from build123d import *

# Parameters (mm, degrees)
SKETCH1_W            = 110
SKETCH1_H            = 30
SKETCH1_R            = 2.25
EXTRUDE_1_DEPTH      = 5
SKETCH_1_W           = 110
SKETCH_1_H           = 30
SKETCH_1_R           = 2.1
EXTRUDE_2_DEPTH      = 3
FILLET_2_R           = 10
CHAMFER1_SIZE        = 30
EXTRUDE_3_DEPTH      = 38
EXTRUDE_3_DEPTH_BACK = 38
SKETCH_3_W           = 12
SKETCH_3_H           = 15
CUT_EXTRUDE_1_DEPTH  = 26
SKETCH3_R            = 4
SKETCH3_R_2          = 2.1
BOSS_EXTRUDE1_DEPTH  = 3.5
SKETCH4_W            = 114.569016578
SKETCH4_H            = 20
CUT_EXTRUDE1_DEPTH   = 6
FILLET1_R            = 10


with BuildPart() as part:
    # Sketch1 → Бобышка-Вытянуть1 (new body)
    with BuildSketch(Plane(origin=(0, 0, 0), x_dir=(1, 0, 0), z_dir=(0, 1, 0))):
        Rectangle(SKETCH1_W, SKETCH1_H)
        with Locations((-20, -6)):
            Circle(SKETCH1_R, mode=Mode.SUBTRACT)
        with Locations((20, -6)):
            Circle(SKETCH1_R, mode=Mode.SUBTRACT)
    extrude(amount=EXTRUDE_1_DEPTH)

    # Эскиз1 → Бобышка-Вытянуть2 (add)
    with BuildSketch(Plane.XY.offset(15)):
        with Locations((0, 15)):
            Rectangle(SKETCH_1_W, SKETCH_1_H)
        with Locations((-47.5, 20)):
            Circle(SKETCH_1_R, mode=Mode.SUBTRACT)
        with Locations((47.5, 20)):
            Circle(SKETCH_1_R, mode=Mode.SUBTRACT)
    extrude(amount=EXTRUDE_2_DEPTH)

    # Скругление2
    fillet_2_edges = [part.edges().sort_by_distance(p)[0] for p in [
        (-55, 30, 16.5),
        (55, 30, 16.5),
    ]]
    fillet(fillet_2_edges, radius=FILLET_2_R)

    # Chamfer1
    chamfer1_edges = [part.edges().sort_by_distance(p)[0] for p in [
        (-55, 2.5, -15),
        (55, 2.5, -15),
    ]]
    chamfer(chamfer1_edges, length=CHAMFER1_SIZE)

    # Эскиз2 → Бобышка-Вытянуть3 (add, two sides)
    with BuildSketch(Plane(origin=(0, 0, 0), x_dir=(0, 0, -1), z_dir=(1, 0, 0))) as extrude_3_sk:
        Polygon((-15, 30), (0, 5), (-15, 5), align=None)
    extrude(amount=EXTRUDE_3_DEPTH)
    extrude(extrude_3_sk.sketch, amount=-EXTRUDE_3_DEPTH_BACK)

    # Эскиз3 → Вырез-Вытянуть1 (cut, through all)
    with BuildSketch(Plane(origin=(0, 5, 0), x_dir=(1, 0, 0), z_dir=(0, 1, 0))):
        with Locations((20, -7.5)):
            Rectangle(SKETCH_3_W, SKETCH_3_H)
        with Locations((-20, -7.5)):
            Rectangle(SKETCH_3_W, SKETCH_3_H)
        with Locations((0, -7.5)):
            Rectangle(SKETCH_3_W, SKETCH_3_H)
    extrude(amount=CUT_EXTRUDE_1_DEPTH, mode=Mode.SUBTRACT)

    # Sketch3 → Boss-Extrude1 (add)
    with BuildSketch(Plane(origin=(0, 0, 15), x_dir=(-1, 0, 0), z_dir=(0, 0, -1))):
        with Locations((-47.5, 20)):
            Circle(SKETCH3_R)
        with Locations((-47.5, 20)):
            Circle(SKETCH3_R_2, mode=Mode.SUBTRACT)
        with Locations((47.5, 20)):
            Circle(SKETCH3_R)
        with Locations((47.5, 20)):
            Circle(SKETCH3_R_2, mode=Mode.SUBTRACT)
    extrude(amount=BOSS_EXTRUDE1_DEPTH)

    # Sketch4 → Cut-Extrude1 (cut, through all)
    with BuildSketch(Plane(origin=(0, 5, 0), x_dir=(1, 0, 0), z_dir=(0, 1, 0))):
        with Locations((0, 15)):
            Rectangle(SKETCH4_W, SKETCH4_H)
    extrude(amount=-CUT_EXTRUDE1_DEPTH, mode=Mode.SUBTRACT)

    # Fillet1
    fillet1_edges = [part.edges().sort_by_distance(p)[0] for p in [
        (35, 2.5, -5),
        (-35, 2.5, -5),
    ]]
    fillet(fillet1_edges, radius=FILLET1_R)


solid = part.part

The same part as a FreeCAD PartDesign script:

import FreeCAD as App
import Part
import Sketcher

V = App.Vector


def edges_at(feature, points):
    """Names of the edges that pass closest to the given points."""
    edges = feature.Shape.Edges
    near = lambda p: min(range(len(edges)), key=lambda i: edges[i].distToShape(Part.Vertex(*p))[0])
    return sorted({f"Edge{near(p) + 1}" for p in points})

doc = App.newDocument("Part")
body = doc.addObject("PartDesign::Body", "Body")

sketch1 = body.newObject("Sketcher::SketchObject", "Sketch")
sketch1.AttachmentSupport = (doc.getObject("XZ_Plane"), [""])
sketch1.MapMode = "FlatFace"
sketch1.addGeometry([
    Part.LineSegment(V(-55, -15, 0), V(-55, 15, 0)),
    Part.LineSegment(V(-55, 15, 0), V(55, 15, 0)),
    Part.LineSegment(V(55, 15, 0), V(55, -15, 0)),
    Part.LineSegment(V(55, -15, 0), V(-55, -15, 0)),
    Part.Circle(V(-20, 6, 0), V(0, 0, 1), 2.2),
    Part.Circle(V(20, 6, 0), V(0, 0, 1), 2.2),
], False)
sketch1.addConstraint([
    Sketcher.Constraint("Coincident", 0, 2, 1, 1),
    Sketcher.Constraint("Coincident", 1, 2, 2, 1),
    Sketcher.Constraint("Coincident", 2, 2, 3, 1),
    Sketcher.Constraint("Coincident", 3, 2, 0, 1),
    Sketcher.Constraint("Vertical", 0),
    Sketcher.Constraint("Horizontal", 1),
    Sketcher.Constraint("Vertical", 2),
    Sketcher.Constraint("Horizontal", 3),
    Sketcher.Constraint("Equal", 4, 5),
    Sketcher.Constraint("Symmetric", 0, 2, 2, 2, -1, 1),
    Sketcher.Constraint("Symmetric", 4, 3, 5, 3, -2),
    Sketcher.Constraint("Diameter", 4, 4.5),
    Sketcher.Constraint("DistanceX", 1, 1, 1, 2, 110.0),
    Sketcher.Constraint("DistanceY", 0, 1, 0, 2, 30.0),
    Sketcher.Constraint("DistanceX", 4, 3, -1, 1, 20.0),
    Sketcher.Constraint("DistanceY", -1, 1, 4, 3, 6.0),
])
pad1 = body.newObject("PartDesign::Pad", "Pad")
pad1.Profile = sketch1
pad1.Length = 5
pad1.Reversed = True

sketch2 = body.newObject("Sketcher::SketchObject", "Sketch001")
sketch2.AttachmentSupport = (doc.getObject("XY_Plane"), [""])
sketch2.MapMode = "FlatFace"
sketch2.AttachmentOffset = App.Placement(V(0, 0, 15), App.Rotation())
sketch2.addGeometry([
    Part.LineSegment(V(-55, 30, 0), V(-55, 0, 0)),
    Part.LineSegment(V(-55, 0, 0), V(55, 0, 0)),
    Part.LineSegment(V(55, 0, 0), V(55, 30, 0)),
    Part.LineSegment(V(55, 30, 0), V(-55, 30, 0)),
    Part.Circle(V(-47.5, 20, 0), V(0, 0, 1), 2.1),
    Part.Circle(V(47.5, 20, 0), V(0, 0, 1), 2.1),
], False)
sketch2.addConstraint([
    Sketcher.Constraint("Coincident", 0, 2, 1, 1),
    Sketcher.Constraint("Coincident", 1, 2, 2, 1),
    Sketcher.Constraint("Coincident", 2, 2, 3, 1),
    Sketcher.Constraint("Coincident", 3, 2, 0, 1),
    Sketcher.Constraint("Vertical", 0),
    Sketcher.Constraint("Horizontal", 1),
    Sketcher.Constraint("Vertical", 2),
    Sketcher.Constraint("Horizontal", 3),
    Sketcher.Constraint("Equal", 4, 5),
    Sketcher.Constraint("Symmetric", 0, 2, 1, 2, -1, 1),
    Sketcher.Constraint("Symmetric", 4, 3, 5, 3, -2),
    Sketcher.Constraint("Diameter", 4, 4.2),
    Sketcher.Constraint("DistanceX", 1, 1, 1, 2, 110.0),
    Sketcher.Constraint("DistanceY", 0, 2, 0, 1, 30.0),
    Sketcher.Constraint("DistanceY", -1, 1, 4, 3, 20.0),
    Sketcher.Constraint("DistanceX", 4, 3, 5, 3, 95.0),
])
pad2 = body.newObject("PartDesign::Pad", "Pad001")
pad2.Profile = sketch2
pad2.Length = 3
doc.recompute()

fillet = body.newObject("PartDesign::Fillet", "Fillet")
fillet.Base = (pad2, edges_at(pad2, [(-55, 30, 16.5), (55, 30, 16.5)]))
fillet.Radius = 10
doc.recompute()

chamfer = body.newObject("PartDesign::Chamfer", "Chamfer")
chamfer.Base = (fillet, edges_at(fillet, [(-55, 2.5, -15), (55, 2.5, -15)]))
chamfer.Size = 30

sketch3 = body.newObject("Sketcher::SketchObject", "Sketch002")
sketch3.AttachmentSupport = (doc.getObject("YZ_Plane"), [""])
sketch3.MapMode = "FlatFace"
sketch3.addGeometry([
    Part.LineSegment(V(5, 0, 0), V(30, 15, 0)),
    Part.LineSegment(V(30, 15, 0), V(5, 15, 0)),
    Part.LineSegment(V(5, 15, 0), V(5, 0, 0)),
], False)
sketch3.addConstraint([
    Sketcher.Constraint("Coincident", 0, 2, 1, 1),
    Sketcher.Constraint("Coincident", 1, 2, 2, 1),
    Sketcher.Constraint("Coincident", 2, 2, 0, 1),
    Sketcher.Constraint("Horizontal", 1),
    Sketcher.Constraint("Vertical", 2),
    Sketcher.Constraint("PointOnObject", 2, 2, -1),
    Sketcher.Constraint("DistanceX", 1, 2, 1, 1, 25.0),
    Sketcher.Constraint("DistanceY", 2, 2, 2, 1, 15.0),
    Sketcher.Constraint("DistanceX", -1, 1, 0, 2, 30.0),
])
pad3 = body.newObject("PartDesign::Pad", "Pad002")
pad3.Profile = sketch3
pad3.Type = "TwoLengths"
pad3.Length = 38
pad3.Length2 = 38

sketch4 = body.newObject("Sketcher::SketchObject", "Sketch003")
sketch4.AttachmentSupport = (doc.getObject("XZ_Plane"), [""])
sketch4.MapMode = "FlatFace"
sketch4.AttachmentOffset = App.Placement(V(0, 0, -5), App.Rotation())
sketch4.addGeometry([
    Part.LineSegment(V(14, 0, 0), V(14, 15, 0)),
    Part.LineSegment(V(14, 15, 0), V(26, 15, 0)),
    Part.LineSegment(V(26, 15, 0), V(26, 0, 0)),
    Part.LineSegment(V(26, 0, 0), V(14, 0, 0)),
    Part.LineSegment(V(-26, 0, 0), V(-26, 15, 0)),
    Part.LineSegment(V(-26, 15, 0), V(-14, 15, 0)),
    Part.LineSegment(V(-14, 15, 0), V(-14, 0, 0)),
    Part.LineSegment(V(-14, 0, 0), V(-26, 0, 0)),
    Part.LineSegment(V(-6, 0, 0), V(-6, 15, 0)),
    Part.LineSegment(V(-6, 15, 0), V(6, 15, 0)),
    Part.LineSegment(V(6, 15, 0), V(6, 0, 0)),
    Part.LineSegment(V(6, 0, 0), V(-6, 0, 0)),
], False)
sketch4.addConstraint([
    Sketcher.Constraint("Coincident", 0, 2, 1, 1),
    Sketcher.Constraint("Coincident", 1, 2, 2, 1),
    Sketcher.Constraint("Coincident", 2, 2, 3, 1),
    Sketcher.Constraint("Coincident", 3, 2, 0, 1),
    Sketcher.Constraint("Coincident", 4, 2, 5, 1),
    Sketcher.Constraint("Coincident", 5, 2, 6, 1),
    Sketcher.Constraint("Coincident", 6, 2, 7, 1),
    Sketcher.Constraint("Coincident", 7, 2, 4, 1),
    Sketcher.Constraint("Coincident", 8, 2, 9, 1),
    Sketcher.Constraint("Coincident", 9, 2, 10, 1),
    Sketcher.Constraint("Coincident", 10, 2, 11, 1),
    Sketcher.Constraint("Coincident", 11, 2, 8, 1),
    Sketcher.Constraint("Vertical", 0),
    Sketcher.Constraint("Horizontal", 1),
    Sketcher.Constraint("Vertical", 2),
    Sketcher.Constraint("Horizontal", 3),
    Sketcher.Constraint("Vertical", 4),
    Sketcher.Constraint("Horizontal", 5),
    Sketcher.Constraint("Vertical", 6),
    Sketcher.Constraint("Horizontal", 7),
    Sketcher.Constraint("Vertical", 8),
    Sketcher.Constraint("Horizontal", 9),
    Sketcher.Constraint("Vertical", 10),
    Sketcher.Constraint("Horizontal", 11),
    Sketcher.Constraint("Symmetric", 3, 2, 6, 2, -1, 1),
    Sketcher.Constraint("Symmetric", 10, 2, 11, 2, -1, 1),
    Sketcher.Constraint("Symmetric", 1, 2, 4, 2, -2),
    Sketcher.Constraint("PointOnObject", 2, 2, -1),
    Sketcher.Constraint("Horizontal", 5, 2, 8, 2),
    Sketcher.Constraint("Equal", 7, 9),
    Sketcher.Constraint("DistanceX", 1, 1, 1, 2, 12.0),
    Sketcher.Constraint("DistanceY", 0, 1, 0, 2, 15.0),
    Sketcher.Constraint("DistanceX", -1, 1, 0, 2, 14.0),
])
pocket1 = body.newObject("PartDesign::Pocket", "Pocket")
pocket1.Profile = sketch4
pocket1.Type = "ThroughAll"

sketch5 = body.newObject("Sketcher::SketchObject", "Sketch004")
sketch5.AttachmentSupport = (doc.getObject("XY_Plane"), [""])
sketch5.MapMode = "FlatFace"
sketch5.AttachmentOffset = App.Placement(V(0, 0, 15), App.Rotation())
sketch5.addGeometry([
    Part.Circle(V(47.5, 20, 0), V(0, 0, 1), 4),
    Part.Circle(V(47.5, 20, 0), V(0, 0, 1), 2.1),
    Part.Circle(V(-47.5, 20, 0), V(0, 0, 1), 4),
    Part.Circle(V(-47.5, 20, 0), V(0, 0, 1), 2.1),
], False)
sketch5.addConstraint([
    Sketcher.Constraint("Coincident", 1, 3, 0, 3),
    Sketcher.Constraint("Coincident", 3, 3, 2, 3),
    Sketcher.Constraint("Equal", 0, 2),
    Sketcher.Constraint("Equal", 1, 3),
    Sketcher.Constraint("Symmetric", 0, 3, 2, 3, -2),
    Sketcher.Constraint("Diameter", 0, 8.0),
    Sketcher.Constraint("Diameter", 1, 4.2),
    Sketcher.Constraint("DistanceY", -1, 1, 0, 3, 20.0),
    Sketcher.Constraint("DistanceX", 2, 3, 0, 3, 95.0),
])
pad4 = body.newObject("PartDesign::Pad", "Pad003")
pad4.Profile = sketch5
pad4.Length = 3.5
pad4.Reversed = True

sketch6 = body.newObject("Sketcher::SketchObject", "Sketch005")
sketch6.AttachmentSupport = (doc.getObject("XZ_Plane"), [""])
sketch6.MapMode = "FlatFace"
sketch6.AttachmentOffset = App.Placement(V(0, 0, -5), App.Rotation())
sketch6.addGeometry([
    Part.LineSegment(V(-57, -25, 0), V(-57, -5, 0)),
    Part.LineSegment(V(-57, -5, 0), V(57, -5, 0)),
    Part.LineSegment(V(57, -5, 0), V(57, -25, 0)),
    Part.LineSegment(V(57, -25, 0), V(-57, -25, 0)),
], False)
sketch6.addConstraint([
    Sketcher.Constraint("Coincident", 0, 2, 1, 1),
    Sketcher.Constraint("Coincident", 1, 2, 2, 1),
    Sketcher.Constraint("Coincident", 2, 2, 3, 1),
    Sketcher.Constraint("Coincident", 3, 2, 0, 1),
    Sketcher.Constraint("Vertical", 0),
    Sketcher.Constraint("Horizontal", 1),
    Sketcher.Constraint("Vertical", 2),
    Sketcher.Constraint("Horizontal", 3),
    Sketcher.Constraint("DistanceY", 0, 1, 0, 2, 20.0),
    Sketcher.Constraint("DistanceY", 0, 2, -1, 1, 5.0),
    Sketcher.Constraint("DistanceX", 1, 1, 1, 2, 114.569017),
    Sketcher.Constraint("DistanceX", 0, 2, -1, 1, 57.284508),
])
pocket2 = body.newObject("PartDesign::Pocket", "Pocket001")
pocket2.Profile = sketch6
pocket2.Type = "ThroughAll"
pocket2.Reversed = True
doc.recompute()

fillet2 = body.newObject("PartDesign::Fillet", "Fillet001")
fillet2.Base = (pocket2, edges_at(pocket2, [(35, 2.5, -5), (-35, 2.5, -5)]))
fillet2.Radius = 10

doc.recompute()
